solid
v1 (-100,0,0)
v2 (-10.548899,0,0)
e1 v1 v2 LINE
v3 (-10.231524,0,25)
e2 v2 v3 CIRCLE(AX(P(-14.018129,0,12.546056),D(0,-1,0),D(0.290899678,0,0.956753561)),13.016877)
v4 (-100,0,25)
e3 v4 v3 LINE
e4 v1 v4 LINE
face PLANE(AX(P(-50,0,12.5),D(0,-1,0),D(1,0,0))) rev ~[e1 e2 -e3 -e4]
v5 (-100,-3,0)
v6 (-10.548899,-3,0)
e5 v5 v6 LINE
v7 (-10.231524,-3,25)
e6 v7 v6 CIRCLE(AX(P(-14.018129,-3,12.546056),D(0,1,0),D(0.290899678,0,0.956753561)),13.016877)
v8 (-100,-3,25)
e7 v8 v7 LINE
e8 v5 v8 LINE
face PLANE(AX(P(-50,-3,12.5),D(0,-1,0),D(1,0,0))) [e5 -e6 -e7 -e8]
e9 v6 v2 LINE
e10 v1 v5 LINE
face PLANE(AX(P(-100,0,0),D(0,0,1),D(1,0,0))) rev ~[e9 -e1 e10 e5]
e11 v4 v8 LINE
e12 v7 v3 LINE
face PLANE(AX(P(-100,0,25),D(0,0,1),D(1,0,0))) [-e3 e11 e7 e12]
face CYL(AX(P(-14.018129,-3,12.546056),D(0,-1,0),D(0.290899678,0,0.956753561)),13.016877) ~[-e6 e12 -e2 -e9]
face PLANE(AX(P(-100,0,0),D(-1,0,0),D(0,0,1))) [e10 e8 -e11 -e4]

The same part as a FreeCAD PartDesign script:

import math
import FreeCAD as App
import Part
import Sketcher

V = App.Vector
Q = App.Units.Quantity

doc = App.newDocument("Part")
params = doc.addObject("Spreadsheet::Sheet", "Params")
for row, (alias, value) in enumerate([
    ("sketch1_width", "100 mm"),
    ("sketch1_height", "25 mm"),
    ("pad1_length", "3 mm"),
    ("sketch2_height", "25 mm"),
], start=1):
    params.set(f"A{row}", alias)
    params.set(f"B{row}", "=" + value)
    params.setAlias(f"B{row}", alias)

body = doc.addObject("PartDesign::Body", "Body")

# Sketch on XZ plane
sketch1 = body.newObject("Sketcher::SketchObject", "Sketch")
sketch1.AttachmentSupport = (doc.getObject("XZ_Plane"), [""])
sketch1.MapMode = "FlatFace"
sketch1.addGeometry([
    Part.LineSegment(V(-100, 25, 0), V(-100, 0, 0)),
    Part.LineSegment(V(-100, 0, 0), V(0, 0, 0)),
    Part.LineSegment(V(0, 0, 0), V(0, 25, 0)),
    Part.LineSegment(V(0, 25, 0), V(-100, 25, 0)),
], False)
sketch1.addConstraint([
    Sketcher.Constraint("Coincident", 0, 2, 1, 1),
    Sketcher.Constraint("Coincident", 1, 2, 2, 1),
    Sketcher.Constraint("Coincident", 2, 2, 3, 1),
    Sketcher.Constraint("Coincident", 3, 2, 0, 1),
    Sketcher.Constraint("Vertical", 0),
    Sketcher.Constraint("Horizontal", 1),
    Sketcher.Constraint("Vertical", 2),
    Sketcher.Constraint("Horizontal", 3),
    Sketcher.Constraint("Coincident", 1, 2, -1, 1),
    Sketcher.Constraint("DistanceX", 1, 1, 1, 2, Q("100 mm")),
    Sketcher.Constraint("DistanceY", 0, 2, 0, 1, Q("25 mm")),
])
sketch1.setExpression("Constraints[9]", "Params.sketch1_width")
sketch1.setExpression("Constraints[10]", "Params.sketch1_height")
pad1 = body.newObject("PartDesign::Pad", "Pad")
pad1.Profile = sketch1
pad1.setExpression("Length", "Params.pad1_length")

# Sketch on XZ plane
sketch2 = body.newObject("Sketcher::SketchObject", "Sketch001")
sketch2.AttachmentSupport = (doc.getObject("XZ_Plane"), [""])
sketch2.MapMode = "FlatFace"
sketch2.AttachmentOffset = App.Placement(V(0, 0, 3), App.Rotation())
sketch2.addGeometry([
    Part.ArcOfCircle(Part.Circle(V(-14.018129, 12.546056, 0), V(0, 0, 1), 13.016877), math.radians(-74.542836), math.radians(73.088174)),
    Part.LineSegment(V(-10.548899, 0, 0), V(0, 0, 0)),
    Part.LineSegment(V(0, 0, 0), V(0, 25, 0)),
    Part.LineSegment(V(0, 25, 0), V(-10.231524, 25, 0)),
], False)
sketch2.addConstraint([
    Sketcher.Constraint("Coincident", 0, 1, 1, 1),
    Sketcher.Constraint("Coincident", 1, 2, 2, 1),
    Sketcher.Constraint("Coincident", 2, 2, 3, 1),
    Sketcher.Constraint("Coincident", 3, 2, 0, 2),
    Sketcher.Constraint("Horizontal", 1),
    Sketcher.Constraint("Vertical", 2),
    Sketcher.Constraint("Horizontal", 3),
    Sketcher.Constraint("Coincident", 1, 2, -1, 1),
    Sketcher.Constraint("DistanceY", 2, 1, 2, 2, Q("25 mm")),
    Sketcher.Constraint("DistanceX", 1, 1, 1, 2, Q("10.548899 mm")),
    Sketcher.Constraint("Radius", 0, Q("13.016877 mm")),
    Sketcher.Constraint("DistanceX", 3, 2, 3, 1, Q("10.231524 mm")),
])
sketch2.setExpression("Constraints[8]", "Params.sketch2_height")
pocket1 = body.newObject("PartDesign::Pocket", "Pocket")
pocket1.Profile = sketch2
pocket1.Type = "ThroughAll"

doc.recompute()
